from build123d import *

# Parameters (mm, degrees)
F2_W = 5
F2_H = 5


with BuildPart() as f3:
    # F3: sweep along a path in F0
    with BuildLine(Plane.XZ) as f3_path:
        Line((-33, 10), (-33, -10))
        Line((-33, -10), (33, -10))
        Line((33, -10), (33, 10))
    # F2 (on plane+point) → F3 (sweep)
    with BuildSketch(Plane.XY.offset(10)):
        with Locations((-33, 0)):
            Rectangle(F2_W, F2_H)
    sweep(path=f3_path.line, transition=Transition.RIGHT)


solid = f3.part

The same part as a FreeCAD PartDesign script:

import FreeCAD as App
import Part
import Sketcher

V = App.Vector
Q = App.Units.Quantity


def add_polygon(sketch, points):
    """Adds a closed chain of lines whose ends are joined by coincident constraints."""
    first, n = sketch.GeometryCount, len(points)
    for a, b in zip(points, points[1:] + points[:1]):
        sketch.addGeometry(Part.LineSegment(App.Vector(*a, 0), App.Vector(*b, 0)), False)
    for i in range(n):
        sketch.addConstraint(Sketcher.Constraint("Coincident", first + i, 2, first + (i + 1) % n, 1))

doc = App.newDocument("Part")
params = doc.addObject("Spreadsheet::Sheet", "Params")
for row, (alias, value) in enumerate([
    ("sketch1_width", "5 mm"),
    ("sketch2_width", "66 mm"),
    ("sketch2_height", "20 mm"),
], start=1):
    params.set(f"A{row}", alias)
    params.set(f"B{row}", "=" + value)
    params.setAlias(f"B{row}", alias)

body = doc.addObject("PartDesign::Body", "Body")

sketch1 = body.newObject("Sketcher::SketchObject", "Sketch")
sketch1.AttachmentSupport = (doc.getObject("XY_Plane"), [""])
sketch1.MapMode = "FlatFace"
sketch1.AttachmentOffset = App.Placement(V(0, 0, 10), App.Rotation())
add_polygon(sketch1, [(-36, 2), (-36, -2), (-30, -2), (-30, 2)])
sketch1.addConstraint(Sketcher.Constraint("Vertical", 0))
sketch1.addConstraint(Sketcher.Constraint("Horizontal", 1))
sketch1.addConstraint(Sketcher.Constraint("Vertical", 2))
sketch1.addConstraint(Sketcher.Constraint("Horizontal", 3))
sketch1.addConstraint(Sketcher.Constraint("Equal", 3, 0))
sketch1.addConstraint(Sketcher.Constraint("DistanceX", 1, 1, 1, 2, Q("5 mm")))
sketch1.addConstraint(Sketcher.Constraint("DistanceX", 0, 2, -1, 1, Q("35.5 mm")))
sketch1.addConstraint(Sketcher.Constraint("DistanceY", 0, 2, -1, 1, Q("2.5 mm")))
sketch1.setExpression("Constraints[9]", "Params.sketch1_width")

sketch2 = body.newObject("Sketcher::SketchObject", "Sketch001")
sketch2.AttachmentSupport = (doc.getObject("XZ_Plane"), [""])
sketch2.MapMode = "FlatFace"
sketch2.addGeometry(Part.LineSegment(V(-33, 10, 0), V(-33, -10, 0)), False)
sketch2.addGeometry(Part.LineSegment(V(-33, -10, 0), V(33, -10, 0)), False)
sketch2.addGeometry(Part.LineSegment(V(33, -10, 0), V(33, 10, 0)), False)
sketch2.addConstraint(Sketcher.Constraint("Coincident", 0, 2, 1, 1))
sketch2.addConstraint(Sketcher.Constraint("Coincident", 1, 2, 2, 1))
sketch2.addConstraint(Sketcher.Constraint("Vertical", 0))
sketch2.addConstraint(Sketcher.Constraint("Horizontal", 1))
sketch2.addConstraint(Sketcher.Constraint("Vertical", 2))
sketch2.addConstraint(Sketcher.Constraint("Symmetric", 0, 1, 1, 2, -1, 1))
sketch2.addConstraint(Sketcher.Constraint("Horizontal", 0, 1, 2, 2))
sketch2.addConstraint(Sketcher.Constraint("DistanceX", 1, 1, 1, 2, Q("66 mm")))
sketch2.addConstraint(Sketcher.Constraint("DistanceY", 0, 2, 0, 1, Q("20 mm")))
sketch2.setExpression("Constraints[7]", "Params.sketch2_width")
sketch2.setExpression("Constraints[8]", "Params.sketch2_height")
doc.recompute()

additivepipe = body.newObject("PartDesign::AdditivePipe", "AdditivePipe")
additivepipe.Profile = sketch1
additivepipe.Spine = (sketch2, ["Edge1", "Edge2", "Edge3"])
additivepipe.Transition = "Right corner"

doc.recompute()
